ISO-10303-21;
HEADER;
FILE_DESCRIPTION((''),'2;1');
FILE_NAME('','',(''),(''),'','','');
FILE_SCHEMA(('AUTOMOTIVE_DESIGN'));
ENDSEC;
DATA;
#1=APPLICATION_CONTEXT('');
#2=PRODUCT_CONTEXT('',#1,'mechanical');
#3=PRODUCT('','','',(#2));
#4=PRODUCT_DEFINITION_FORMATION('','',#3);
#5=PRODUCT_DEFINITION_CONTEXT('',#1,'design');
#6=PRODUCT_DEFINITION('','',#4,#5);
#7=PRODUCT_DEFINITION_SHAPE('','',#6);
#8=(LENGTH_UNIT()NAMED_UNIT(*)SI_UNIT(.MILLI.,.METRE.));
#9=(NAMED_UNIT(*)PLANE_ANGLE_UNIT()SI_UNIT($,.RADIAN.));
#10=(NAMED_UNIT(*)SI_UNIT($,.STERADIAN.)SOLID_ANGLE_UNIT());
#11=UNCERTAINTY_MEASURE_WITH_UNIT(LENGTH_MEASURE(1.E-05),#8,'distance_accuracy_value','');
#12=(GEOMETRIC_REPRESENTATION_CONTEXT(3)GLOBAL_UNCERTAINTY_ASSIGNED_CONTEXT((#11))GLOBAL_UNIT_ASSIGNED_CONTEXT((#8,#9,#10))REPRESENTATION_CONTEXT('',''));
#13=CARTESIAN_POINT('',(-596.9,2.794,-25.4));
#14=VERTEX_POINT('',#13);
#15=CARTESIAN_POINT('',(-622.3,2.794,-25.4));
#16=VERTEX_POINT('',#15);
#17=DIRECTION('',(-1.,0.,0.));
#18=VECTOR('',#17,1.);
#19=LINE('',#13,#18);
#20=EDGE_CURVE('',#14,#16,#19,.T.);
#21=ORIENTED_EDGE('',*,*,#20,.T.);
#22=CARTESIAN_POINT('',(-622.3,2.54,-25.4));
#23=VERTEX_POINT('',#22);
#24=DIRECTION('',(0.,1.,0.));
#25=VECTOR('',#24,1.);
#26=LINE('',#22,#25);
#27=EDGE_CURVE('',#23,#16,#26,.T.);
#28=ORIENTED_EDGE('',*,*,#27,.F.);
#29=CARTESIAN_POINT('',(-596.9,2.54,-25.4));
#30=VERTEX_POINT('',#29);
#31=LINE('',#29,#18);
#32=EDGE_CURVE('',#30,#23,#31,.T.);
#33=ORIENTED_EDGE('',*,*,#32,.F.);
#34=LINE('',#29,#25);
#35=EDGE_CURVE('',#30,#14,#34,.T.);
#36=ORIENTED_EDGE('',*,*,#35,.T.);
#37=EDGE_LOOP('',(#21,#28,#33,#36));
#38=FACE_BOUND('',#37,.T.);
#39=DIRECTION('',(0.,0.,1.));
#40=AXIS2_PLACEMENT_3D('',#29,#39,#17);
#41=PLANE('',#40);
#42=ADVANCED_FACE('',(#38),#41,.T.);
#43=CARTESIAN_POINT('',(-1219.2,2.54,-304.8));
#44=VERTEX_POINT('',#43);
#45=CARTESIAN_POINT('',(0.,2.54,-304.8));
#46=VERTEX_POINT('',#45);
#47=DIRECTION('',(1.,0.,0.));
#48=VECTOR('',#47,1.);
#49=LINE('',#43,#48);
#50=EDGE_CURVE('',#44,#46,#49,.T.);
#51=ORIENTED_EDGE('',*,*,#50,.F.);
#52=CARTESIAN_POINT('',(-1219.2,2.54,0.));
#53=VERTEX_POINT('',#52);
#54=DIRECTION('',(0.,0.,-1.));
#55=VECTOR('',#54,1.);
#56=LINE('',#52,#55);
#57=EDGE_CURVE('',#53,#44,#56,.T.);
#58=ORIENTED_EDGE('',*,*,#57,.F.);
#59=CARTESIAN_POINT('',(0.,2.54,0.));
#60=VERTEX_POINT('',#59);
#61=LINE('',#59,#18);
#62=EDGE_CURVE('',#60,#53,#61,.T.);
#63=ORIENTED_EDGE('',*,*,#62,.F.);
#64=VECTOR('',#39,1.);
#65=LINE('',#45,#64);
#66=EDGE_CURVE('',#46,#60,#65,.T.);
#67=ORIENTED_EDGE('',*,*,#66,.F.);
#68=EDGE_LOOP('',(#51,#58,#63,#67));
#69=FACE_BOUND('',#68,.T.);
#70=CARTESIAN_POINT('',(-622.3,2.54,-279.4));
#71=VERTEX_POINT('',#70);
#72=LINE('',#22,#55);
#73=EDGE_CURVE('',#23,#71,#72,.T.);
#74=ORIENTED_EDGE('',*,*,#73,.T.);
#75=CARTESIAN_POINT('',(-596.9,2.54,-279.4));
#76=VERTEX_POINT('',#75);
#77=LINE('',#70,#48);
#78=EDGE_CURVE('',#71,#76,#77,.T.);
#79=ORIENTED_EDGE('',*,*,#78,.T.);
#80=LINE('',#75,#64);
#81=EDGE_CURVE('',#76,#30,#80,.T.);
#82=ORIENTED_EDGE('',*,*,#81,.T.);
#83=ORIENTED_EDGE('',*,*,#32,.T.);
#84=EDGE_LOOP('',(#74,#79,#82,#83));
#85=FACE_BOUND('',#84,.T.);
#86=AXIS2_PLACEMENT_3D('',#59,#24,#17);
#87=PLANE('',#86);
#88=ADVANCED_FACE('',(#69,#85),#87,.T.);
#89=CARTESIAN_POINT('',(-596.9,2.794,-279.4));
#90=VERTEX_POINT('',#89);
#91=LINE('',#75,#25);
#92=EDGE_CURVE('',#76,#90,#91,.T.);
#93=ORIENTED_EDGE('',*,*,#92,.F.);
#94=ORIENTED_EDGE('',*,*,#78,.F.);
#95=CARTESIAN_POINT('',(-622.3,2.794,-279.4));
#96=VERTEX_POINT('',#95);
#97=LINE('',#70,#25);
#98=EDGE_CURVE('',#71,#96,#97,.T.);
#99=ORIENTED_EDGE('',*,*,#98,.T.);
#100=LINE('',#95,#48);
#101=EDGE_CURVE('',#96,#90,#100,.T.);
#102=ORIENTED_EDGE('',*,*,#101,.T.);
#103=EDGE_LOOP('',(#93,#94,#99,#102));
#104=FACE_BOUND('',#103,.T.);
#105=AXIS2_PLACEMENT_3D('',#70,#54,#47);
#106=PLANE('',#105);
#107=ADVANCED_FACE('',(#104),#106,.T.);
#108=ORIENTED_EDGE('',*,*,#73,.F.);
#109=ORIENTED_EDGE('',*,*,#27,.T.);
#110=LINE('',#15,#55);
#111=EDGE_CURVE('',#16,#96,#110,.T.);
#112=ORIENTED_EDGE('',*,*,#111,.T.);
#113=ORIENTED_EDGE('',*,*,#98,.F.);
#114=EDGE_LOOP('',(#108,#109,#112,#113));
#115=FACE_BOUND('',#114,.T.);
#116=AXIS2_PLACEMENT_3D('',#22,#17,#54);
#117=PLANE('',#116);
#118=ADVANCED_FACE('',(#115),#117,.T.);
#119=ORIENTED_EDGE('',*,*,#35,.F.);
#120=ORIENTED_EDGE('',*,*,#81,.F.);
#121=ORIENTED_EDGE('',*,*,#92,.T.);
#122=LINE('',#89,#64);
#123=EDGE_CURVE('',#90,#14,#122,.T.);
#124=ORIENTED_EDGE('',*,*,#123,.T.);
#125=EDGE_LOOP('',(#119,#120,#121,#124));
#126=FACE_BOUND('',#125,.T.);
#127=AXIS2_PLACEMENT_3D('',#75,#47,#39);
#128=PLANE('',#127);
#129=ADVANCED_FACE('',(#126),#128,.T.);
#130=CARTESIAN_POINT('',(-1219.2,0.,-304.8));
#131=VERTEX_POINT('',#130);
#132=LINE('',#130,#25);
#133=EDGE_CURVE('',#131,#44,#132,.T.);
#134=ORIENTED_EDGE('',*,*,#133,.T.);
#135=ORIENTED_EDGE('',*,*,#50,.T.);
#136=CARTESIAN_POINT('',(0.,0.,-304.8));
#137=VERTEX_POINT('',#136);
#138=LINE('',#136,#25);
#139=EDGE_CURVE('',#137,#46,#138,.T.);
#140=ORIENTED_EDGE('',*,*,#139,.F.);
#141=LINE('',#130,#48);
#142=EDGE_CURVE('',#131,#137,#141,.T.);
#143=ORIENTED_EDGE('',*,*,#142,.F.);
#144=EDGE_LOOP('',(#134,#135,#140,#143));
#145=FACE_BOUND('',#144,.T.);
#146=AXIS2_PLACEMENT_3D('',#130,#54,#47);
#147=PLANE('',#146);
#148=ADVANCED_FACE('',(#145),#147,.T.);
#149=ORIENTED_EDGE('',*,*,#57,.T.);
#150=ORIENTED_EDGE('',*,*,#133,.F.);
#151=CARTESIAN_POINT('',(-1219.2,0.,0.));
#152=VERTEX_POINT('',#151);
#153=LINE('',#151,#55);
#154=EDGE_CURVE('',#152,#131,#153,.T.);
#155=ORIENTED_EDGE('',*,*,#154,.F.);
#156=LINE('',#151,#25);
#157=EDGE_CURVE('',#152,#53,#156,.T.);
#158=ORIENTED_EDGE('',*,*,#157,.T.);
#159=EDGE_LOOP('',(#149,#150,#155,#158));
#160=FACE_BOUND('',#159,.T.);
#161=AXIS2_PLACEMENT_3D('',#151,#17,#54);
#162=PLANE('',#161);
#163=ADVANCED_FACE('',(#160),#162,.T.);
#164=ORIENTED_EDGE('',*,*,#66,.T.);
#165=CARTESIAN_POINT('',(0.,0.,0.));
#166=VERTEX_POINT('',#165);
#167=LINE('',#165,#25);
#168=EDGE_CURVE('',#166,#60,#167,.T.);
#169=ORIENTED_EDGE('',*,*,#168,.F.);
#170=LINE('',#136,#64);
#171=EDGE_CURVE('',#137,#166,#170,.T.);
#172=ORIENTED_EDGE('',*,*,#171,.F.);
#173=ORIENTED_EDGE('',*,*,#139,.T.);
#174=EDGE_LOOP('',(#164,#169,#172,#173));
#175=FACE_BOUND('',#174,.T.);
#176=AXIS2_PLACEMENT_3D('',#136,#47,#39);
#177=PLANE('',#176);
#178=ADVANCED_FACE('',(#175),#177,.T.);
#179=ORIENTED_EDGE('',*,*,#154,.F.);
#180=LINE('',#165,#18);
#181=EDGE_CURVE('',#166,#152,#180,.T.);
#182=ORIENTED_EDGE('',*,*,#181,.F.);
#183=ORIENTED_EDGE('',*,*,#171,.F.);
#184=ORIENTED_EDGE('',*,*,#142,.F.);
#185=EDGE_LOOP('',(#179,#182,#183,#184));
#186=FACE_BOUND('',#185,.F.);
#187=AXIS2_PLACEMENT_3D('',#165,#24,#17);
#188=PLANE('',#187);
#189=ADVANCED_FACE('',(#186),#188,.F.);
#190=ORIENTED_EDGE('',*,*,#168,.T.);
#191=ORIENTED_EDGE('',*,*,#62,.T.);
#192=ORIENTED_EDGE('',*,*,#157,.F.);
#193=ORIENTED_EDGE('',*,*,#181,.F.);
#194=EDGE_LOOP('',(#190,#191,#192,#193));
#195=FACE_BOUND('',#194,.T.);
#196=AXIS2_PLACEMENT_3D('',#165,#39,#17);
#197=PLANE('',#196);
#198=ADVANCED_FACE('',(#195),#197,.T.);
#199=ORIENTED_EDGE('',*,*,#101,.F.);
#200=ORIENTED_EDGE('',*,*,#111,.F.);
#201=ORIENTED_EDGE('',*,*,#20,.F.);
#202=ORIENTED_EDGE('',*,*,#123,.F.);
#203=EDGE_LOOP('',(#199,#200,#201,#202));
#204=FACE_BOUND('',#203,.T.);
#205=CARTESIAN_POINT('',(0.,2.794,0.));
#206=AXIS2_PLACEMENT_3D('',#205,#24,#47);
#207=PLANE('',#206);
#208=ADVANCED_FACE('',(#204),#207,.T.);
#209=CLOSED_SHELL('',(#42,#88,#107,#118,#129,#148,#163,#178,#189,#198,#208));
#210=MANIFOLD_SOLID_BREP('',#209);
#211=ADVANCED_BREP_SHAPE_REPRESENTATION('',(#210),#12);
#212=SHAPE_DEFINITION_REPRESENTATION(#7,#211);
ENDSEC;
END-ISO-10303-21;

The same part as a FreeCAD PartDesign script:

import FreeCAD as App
import Part
import Sketcher

V = App.Vector
Q = App.Units.Quantity


def add_polygon(sketch, points):
    """Adds a closed chain of lines whose ends are joined by coincident constraints."""
    first, n = sketch.GeometryCount, len(points)
    for a, b in zip(points, points[1:] + points[:1]):
        sketch.addGeometry(Part.LineSegment(App.Vector(*a, 0), App.Vector(*b, 0)), False)
    for i in range(n):
        sketch.addConstraint(Sketcher.Constraint("Coincident", first + i, 2, first + (i + 1) % n, 1))

doc = App.newDocument("Part")
params = doc.addObject("Spreadsheet::Sheet", "Params")
for row, (alias, value) in enumerate([
    ("sketch1_width", "48 in"),
    ("sketch1_height", "12 in"),
    ("pad1_length", "0.1 in"),
    ("sketch2_width", "1 in"),
    ("sketch2_height", "10 in"),
    ("pad2_length", "0.01 in"),
], start=1):
    params.set(f"A{row}", alias)
    params.set(f"B{row}", "=" + value)
    params.setAlias(f"B{row}", alias)

body = doc.addObject("PartDesign::Body", "Body")

sketch1 = body.newObject("Sketcher::SketchObject", "Sketch")
sketch1.AttachmentSupport = (doc.getObject("XZ_Plane"), [""])
sketch1.MapMode = "FlatFace"
add_polygon(sketch1, [(-1219, 0), (0, 0), (0, -305), (-1219, -305)])
sketch1.addConstraint(Sketcher.Constraint("Horizontal", 0))
sketch1.addConstraint(Sketcher.Constraint("Vertical", 1))
sketch1.addConstraint(Sketcher.Constraint("Horizontal", 2))
sketch1.addConstraint(Sketcher.Constraint("Vertical", 3))
sketch1.addConstraint(Sketcher.Constraint("Coincident", 0, 2, -1, 1))
sketch1.addConstraint(Sketcher.Constraint("DistanceX", 0, 1, 0, 2, Q("48 in")))
sketch1.addConstraint(Sketcher.Constraint("DistanceY", 1, 2, 1, 1, Q("12 in")))
sketch1.setExpression("Constraints[9]", "Params.sketch1_width")
sketch1.setExpression("Constraints[10]", "Params.sketch1_height")
pad1 = body.newObject("PartDesign::Pad", "Pad")
pad1.Profile = sketch1
pad1.setExpression("Length", "Params.pad1_length")
pad1.Reversed = True

sketch2 = body.newObject("Sketcher::SketchObject", "Sketch001")
sketch2.AttachmentSupport = (doc.getObject("XZ_Plane"), [""])
sketch2.MapMode = "FlatFace"
sketch2.AttachmentOffset = App.Placement(V(0, 0, -0.1 * 25.4), App.Rotation())
add_polygon(sketch2, [(-597, -279), (-622, -279), (-622, -25), (-597, -25)])
sketch2.addConstraint(Sketcher.Constraint("Horizontal", 0))
sketch2.addConstraint(Sketcher.Constraint("Vertical", 1))
sketch2.addConstraint(Sketcher.Constraint("Horizontal", 2))
sketch2.addConstraint(Sketcher.Constraint("Vertical", 3))
sketch2.addConstraint(Sketcher.Constraint("DistanceX", 0, 2, 0, 1, Q("1 in")))
sketch2.addConstraint(Sketcher.Constraint("DistanceY", 1, 1, 1, 2, Q("10 in")))
sketch2.addConstraint(Sketcher.Constraint("DistanceY", 1, 2, -1, 1, Q("1 in")))
sketch2.addConstraint(Sketcher.Constraint("DistanceX", 0, 2, -1, 1, Q("24.5 in")))
sketch2.setExpression("Constraints[8]", "Params.sketch2_width")
sketch2.setExpression("Constraints[9]", "Params.sketch2_height")
pad2 = body.newObject("PartDesign::Pad", "Pad001")
pad2.Profile = sketch2
pad2.setExpression("Length", "Params.pad2_length")
pad2.Reversed = True

doc.recompute()
